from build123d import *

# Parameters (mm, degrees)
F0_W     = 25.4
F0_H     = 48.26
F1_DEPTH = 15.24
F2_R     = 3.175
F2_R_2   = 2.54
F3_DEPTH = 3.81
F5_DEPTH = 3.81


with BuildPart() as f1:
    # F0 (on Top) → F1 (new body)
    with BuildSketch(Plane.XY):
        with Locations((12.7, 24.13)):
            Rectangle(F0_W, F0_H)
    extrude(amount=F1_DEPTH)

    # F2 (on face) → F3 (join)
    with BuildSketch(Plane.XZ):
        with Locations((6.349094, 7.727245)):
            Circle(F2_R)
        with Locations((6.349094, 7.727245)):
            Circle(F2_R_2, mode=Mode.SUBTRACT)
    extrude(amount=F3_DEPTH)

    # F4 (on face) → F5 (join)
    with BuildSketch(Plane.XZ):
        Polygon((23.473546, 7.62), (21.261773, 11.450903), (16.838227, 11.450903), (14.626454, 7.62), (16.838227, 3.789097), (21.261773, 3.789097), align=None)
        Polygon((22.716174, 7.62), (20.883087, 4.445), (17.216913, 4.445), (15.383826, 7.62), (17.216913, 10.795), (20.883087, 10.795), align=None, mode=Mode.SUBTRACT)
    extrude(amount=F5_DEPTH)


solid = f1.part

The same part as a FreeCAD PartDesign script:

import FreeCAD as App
import Part
import Sketcher
from FreeCAD import Vector
Q = App.Units.Quantity


def add_polygon(sketch, points):
    """Adds a closed chain of lines whose ends are joined by coincident constraints."""
    first, n = sketch.GeometryCount, len(points)
    for a, b in zip(points, points[1:] + points[:1]):
        sketch.addGeometry(Part.LineSegment(App.Vector(*a, 0), App.Vector(*b, 0)), False)
    for i in range(n):
        sketch.addConstraint(Sketcher.Constraint("Coincident", first + i, 2, first + (i + 1) % n, 1))

doc = App.newDocument("Part")
body = doc.addObject("PartDesign::Body", "Body")

sketch1 = body.newObject("Sketcher::SketchObject", "Sketch")
sketch1.AttachmentSupport = (doc.getObject("XY_Plane"), [""])
sketch1.MapMode = "FlatFace"
add_polygon(sketch1, [(0, 48), (0, 0), (25, 0), (25, 48)])
sketch1.addConstraint([
    Sketcher.Constraint("Vertical", 0),
    Sketcher.Constraint("Horizontal", 1),
    Sketcher.Constraint("Vertical", 2),
    Sketcher.Constraint("Horizontal", 3),
    Sketcher.Constraint("Coincident", 0, 2, -1, 1),
    Sketcher.Constraint("DistanceX", 1, 1, 1, 2, Q("1 in")),
    Sketcher.Constraint("DistanceY", 0, 2, 0, 1, Q("1.9 in")),
])
pad1 = body.newObject("PartDesign::Pad", "Pad")
pad1.Profile = sketch1
pad1.Length = Q("0.6 in")

sketch2 = body.newObject("Sketcher::SketchObject", "Sketch001")
sketch2.AttachmentSupport = (doc.getObject("XZ_Plane"), [""])
sketch2.MapMode = "FlatFace"
sketch2.addGeometry([
    Part.Circle(Vector(6.3, 7.7, 0), Vector(0, 0, 1), 3.2),
    Part.Circle(Vector(6.3, 7.7, 0), Vector(0, 0, 1), 2.5),
], False)
sketch2.addConstraint([
    Sketcher.Constraint("Coincident", 1, 3, 0, 3),
    Sketcher.Constraint("Diameter", 1, Q("0.2 in")),
    Sketcher.Constraint("Diameter", 0, Q("0.25 in")),
    Sketcher.Constraint("DistanceX", -1, 1, 0, 3, Q("6.349094 mm")),
    Sketcher.Constraint("DistanceY", -1, 1, 0, 3, Q("7.727245 mm")),
])
pad2 = body.newObject("PartDesign::Pad", "Pad001")
pad2.Profile = sketch2
pad2.Length = Q("0.15 in")

sketch3 = body.newObject("Sketcher::SketchObject", "Sketch002")
sketch3.AttachmentSupport = (doc.getObject("XZ_Plane"), [""])
sketch3.MapMode = "FlatFace"
add_polygon(sketch3, [(23.5, 7.6), (21.3, 11.5), (16.8, 11.5), (14.6, 7.6), (16.8, 3.8), (21.3, 3.8)])
add_polygon(sketch3, [(20.9, 10.8), (22.7, 7.6), (20.9, 4.4), (17.2, 4.4), (15.4, 7.6), (17.2, 10.8)])
sketch3.addConstraint([
    Sketcher.Constraint("Horizontal", 1),
    Sketcher.Constraint("Horizontal", 4),
    Sketcher.Constraint("Horizontal", 8),
    Sketcher.Constraint("Horizontal", 11),
    Sketcher.Constraint("Parallel", 0, 3),
    Sketcher.Constraint("Parallel", 2, 5),
    Sketcher.Constraint("Parallel", 3, 6),
    Sketcher.Constraint("Parallel", 5, 7),
    Sketcher.Constraint("Parallel", 6, 9),
    Sketcher.Constraint("Parallel", 7, 10),
    Sketcher.Constraint("Horizontal", 2, 2, 5, 2),
    Sketcher.Constraint("Horizontal", 5, 2, 6, 2),
    Sketcher.Constraint("Horizontal", 6, 2, 9, 2),
    Sketcher.Constraint("Vertical", 1, 2, 3, 2),
    Sketcher.Constraint("Vertical", 0, 2, 4, 2),
    Sketcher.Constraint("Vertical", 8, 2, 10, 2),
    Sketcher.Constraint("Angle", 0, Q("120.000001 deg")),
    Sketcher.Constraint("DistanceY", -1, 1, 2, 2, Q("0.3 in")),
    Sketcher.Constraint("DistanceY", -1, 1, 7, 2, Q("0.175 in")),
    Sketcher.Constraint("DistanceX", 0, 2, 6, 2, Q("1.454401 mm")),
    Sketcher.Constraint("DistanceX", 9, 2, 1, 2, Q("1.454401 mm")),
    Sketcher.Constraint("DistanceX", 1, 2, 1, 1, Q("4.423546 mm")),
    Sketcher.Constraint("DistanceX", 2, 2, 0, 2, Q("6.635319 mm")),
    Sketcher.Constraint("DistanceX", -1, 1, 0, 2, Q("21.261773 mm")),
])
pad3 = body.newObject("PartDesign::Pad", "Pad002")
pad3.Profile = sketch3
pad3.Length = Q("0.15 in")

doc.recompute()
